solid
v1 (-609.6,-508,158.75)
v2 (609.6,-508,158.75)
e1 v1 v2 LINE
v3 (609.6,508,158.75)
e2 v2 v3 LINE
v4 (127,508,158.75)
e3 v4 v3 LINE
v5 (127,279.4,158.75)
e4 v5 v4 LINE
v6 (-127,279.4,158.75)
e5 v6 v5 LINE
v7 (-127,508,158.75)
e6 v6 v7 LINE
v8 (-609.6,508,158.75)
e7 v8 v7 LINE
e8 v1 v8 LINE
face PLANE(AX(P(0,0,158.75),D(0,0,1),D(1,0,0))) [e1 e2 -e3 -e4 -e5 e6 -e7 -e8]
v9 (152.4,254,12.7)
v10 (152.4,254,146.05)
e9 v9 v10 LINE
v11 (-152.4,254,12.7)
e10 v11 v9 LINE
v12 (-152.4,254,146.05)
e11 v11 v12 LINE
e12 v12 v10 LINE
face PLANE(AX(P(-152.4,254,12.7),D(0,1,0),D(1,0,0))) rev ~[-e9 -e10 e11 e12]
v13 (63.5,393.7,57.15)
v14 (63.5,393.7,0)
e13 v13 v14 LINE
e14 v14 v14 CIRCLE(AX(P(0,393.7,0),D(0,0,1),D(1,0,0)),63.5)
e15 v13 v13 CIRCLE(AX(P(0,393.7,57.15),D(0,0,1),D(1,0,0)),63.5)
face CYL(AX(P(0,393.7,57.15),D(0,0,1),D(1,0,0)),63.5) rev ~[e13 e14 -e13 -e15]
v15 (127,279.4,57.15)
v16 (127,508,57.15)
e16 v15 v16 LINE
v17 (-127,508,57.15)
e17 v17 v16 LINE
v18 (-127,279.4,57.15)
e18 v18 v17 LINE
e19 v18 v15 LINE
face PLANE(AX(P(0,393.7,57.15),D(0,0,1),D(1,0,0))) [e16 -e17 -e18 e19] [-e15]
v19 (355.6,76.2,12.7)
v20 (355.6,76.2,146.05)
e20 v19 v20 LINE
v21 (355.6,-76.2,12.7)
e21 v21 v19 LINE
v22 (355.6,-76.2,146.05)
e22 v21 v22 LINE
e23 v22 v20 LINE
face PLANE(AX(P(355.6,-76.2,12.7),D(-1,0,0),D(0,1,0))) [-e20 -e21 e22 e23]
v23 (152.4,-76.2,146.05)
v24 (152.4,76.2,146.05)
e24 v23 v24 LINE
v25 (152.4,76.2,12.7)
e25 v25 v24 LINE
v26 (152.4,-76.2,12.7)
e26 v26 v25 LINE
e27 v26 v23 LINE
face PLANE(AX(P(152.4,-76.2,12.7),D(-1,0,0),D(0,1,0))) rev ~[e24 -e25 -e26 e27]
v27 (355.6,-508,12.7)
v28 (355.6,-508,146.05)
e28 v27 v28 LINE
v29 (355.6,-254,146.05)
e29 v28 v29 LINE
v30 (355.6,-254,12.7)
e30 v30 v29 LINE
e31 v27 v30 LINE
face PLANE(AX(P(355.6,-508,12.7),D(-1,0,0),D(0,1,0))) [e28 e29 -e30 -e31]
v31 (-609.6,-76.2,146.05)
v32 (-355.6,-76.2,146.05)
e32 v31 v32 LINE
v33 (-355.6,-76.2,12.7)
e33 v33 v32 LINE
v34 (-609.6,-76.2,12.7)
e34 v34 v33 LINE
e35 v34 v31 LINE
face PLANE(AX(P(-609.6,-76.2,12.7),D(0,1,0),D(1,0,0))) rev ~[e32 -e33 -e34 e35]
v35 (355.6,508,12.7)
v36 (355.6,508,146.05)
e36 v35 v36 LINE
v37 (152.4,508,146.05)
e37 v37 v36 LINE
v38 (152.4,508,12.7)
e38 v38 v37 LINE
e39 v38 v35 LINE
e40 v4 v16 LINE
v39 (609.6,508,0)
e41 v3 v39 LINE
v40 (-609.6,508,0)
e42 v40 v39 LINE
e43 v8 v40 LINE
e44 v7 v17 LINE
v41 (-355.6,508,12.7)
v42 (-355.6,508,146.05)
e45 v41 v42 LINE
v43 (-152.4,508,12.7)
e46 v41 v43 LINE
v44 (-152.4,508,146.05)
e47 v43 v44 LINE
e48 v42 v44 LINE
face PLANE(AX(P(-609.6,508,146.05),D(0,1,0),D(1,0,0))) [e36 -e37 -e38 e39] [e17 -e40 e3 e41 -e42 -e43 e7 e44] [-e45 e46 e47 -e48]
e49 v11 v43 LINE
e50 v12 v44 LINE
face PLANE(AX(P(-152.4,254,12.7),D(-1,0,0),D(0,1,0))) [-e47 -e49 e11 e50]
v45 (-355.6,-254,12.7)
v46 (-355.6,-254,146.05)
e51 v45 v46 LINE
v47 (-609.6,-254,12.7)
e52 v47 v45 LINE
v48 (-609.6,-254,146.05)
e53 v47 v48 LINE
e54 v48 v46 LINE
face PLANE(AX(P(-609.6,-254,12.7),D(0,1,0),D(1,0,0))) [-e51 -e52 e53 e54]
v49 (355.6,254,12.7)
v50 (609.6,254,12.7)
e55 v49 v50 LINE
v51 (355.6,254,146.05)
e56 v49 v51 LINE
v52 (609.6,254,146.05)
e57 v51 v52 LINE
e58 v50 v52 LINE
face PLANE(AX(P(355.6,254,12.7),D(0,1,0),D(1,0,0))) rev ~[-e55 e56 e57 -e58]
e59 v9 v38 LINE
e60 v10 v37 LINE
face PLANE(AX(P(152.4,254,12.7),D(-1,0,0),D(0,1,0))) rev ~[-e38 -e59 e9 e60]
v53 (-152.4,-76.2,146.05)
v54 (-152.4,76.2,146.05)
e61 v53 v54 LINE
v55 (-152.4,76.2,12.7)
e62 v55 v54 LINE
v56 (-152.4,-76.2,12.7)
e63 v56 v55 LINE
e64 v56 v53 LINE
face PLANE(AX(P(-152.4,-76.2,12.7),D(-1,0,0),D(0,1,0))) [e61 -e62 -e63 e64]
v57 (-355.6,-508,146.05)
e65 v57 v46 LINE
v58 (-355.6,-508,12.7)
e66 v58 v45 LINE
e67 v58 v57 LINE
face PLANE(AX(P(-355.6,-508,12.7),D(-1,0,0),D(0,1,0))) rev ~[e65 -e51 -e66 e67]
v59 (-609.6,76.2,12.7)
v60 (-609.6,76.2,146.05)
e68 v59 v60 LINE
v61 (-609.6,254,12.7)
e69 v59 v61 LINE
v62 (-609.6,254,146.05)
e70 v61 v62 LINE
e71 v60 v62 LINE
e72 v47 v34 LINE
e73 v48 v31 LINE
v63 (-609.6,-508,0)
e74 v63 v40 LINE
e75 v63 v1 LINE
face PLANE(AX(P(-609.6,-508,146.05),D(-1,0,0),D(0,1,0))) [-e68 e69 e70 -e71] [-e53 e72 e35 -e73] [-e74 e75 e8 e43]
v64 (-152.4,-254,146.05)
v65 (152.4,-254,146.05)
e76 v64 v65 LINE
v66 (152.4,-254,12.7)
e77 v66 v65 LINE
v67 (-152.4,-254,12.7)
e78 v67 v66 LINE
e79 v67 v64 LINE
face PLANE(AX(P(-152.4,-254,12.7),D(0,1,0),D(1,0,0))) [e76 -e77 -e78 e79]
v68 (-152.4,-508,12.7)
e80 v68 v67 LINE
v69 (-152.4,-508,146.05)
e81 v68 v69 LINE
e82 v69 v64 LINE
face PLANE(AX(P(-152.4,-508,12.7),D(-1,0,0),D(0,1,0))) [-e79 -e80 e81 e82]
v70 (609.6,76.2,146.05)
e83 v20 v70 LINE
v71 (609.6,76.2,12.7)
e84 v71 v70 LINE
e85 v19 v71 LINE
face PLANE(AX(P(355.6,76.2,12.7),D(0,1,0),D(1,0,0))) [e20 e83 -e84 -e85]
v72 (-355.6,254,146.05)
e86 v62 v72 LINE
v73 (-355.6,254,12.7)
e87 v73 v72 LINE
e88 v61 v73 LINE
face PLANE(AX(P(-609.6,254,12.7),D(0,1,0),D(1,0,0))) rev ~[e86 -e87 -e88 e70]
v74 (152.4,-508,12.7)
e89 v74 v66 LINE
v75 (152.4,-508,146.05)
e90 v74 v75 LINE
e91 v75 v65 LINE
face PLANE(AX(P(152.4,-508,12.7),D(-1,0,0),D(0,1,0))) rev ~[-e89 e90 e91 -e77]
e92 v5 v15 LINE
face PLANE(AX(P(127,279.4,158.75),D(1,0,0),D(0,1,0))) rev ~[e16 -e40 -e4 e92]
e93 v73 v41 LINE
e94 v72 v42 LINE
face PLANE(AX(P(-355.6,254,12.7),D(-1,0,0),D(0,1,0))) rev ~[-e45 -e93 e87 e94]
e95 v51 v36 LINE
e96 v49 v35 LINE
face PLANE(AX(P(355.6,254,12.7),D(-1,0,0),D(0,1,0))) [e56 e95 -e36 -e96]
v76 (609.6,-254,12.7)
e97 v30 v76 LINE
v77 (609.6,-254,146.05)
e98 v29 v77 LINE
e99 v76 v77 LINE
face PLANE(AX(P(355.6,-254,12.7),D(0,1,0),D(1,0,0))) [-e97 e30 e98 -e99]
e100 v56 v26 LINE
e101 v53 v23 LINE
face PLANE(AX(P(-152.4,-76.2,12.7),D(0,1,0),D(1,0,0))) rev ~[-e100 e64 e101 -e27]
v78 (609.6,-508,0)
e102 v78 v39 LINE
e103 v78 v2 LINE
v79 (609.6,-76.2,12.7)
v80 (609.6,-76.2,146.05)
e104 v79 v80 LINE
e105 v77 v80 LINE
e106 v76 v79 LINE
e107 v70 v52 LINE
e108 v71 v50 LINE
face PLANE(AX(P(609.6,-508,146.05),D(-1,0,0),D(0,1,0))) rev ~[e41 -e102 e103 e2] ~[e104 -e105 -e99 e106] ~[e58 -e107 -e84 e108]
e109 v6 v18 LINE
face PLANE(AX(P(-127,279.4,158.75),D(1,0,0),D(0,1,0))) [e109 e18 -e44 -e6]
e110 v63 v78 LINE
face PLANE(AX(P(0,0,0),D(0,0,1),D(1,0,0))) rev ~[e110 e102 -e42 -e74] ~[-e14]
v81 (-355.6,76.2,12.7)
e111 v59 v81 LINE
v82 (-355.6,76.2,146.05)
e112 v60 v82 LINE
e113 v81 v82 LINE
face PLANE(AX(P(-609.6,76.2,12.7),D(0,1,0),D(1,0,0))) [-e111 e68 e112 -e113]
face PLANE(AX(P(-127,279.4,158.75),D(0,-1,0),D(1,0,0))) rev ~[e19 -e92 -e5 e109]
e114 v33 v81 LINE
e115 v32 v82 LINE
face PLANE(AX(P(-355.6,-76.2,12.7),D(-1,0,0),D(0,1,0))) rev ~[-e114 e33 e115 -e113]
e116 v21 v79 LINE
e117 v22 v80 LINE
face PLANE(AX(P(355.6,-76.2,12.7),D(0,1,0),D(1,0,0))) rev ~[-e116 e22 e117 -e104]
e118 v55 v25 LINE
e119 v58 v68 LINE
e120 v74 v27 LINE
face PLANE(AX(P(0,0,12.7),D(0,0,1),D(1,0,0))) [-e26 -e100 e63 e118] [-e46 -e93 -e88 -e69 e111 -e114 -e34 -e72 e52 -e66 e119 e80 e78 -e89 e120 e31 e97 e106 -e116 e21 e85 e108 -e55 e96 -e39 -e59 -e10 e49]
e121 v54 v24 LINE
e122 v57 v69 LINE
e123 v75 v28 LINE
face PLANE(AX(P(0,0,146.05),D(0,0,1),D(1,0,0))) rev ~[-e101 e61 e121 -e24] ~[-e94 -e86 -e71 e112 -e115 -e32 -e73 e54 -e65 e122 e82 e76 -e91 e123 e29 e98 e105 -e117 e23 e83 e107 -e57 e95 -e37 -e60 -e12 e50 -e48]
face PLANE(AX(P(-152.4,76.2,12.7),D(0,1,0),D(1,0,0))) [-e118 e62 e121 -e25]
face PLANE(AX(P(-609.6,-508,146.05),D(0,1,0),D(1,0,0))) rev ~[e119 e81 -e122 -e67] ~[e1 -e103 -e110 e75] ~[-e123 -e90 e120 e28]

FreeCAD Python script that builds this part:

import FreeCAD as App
import Part
import Sketcher

V = App.Vector
Q = App.Units.Quantity


def add_polygon(sketch, points):
    """Adds a closed chain of lines whose ends are joined by coincident constraints."""
    first, n = sketch.GeometryCount, len(points)
    for a, b in zip(points, points[1:] + points[:1]):
        sketch.addGeometry(Part.LineSegment(App.Vector(*a, 0), App.Vector(*b, 0)), False)
    for i in range(n):
        sketch.addConstraint(Sketcher.Constraint("Coincident", first + i, 2, first + (i + 1) % n, 1))

doc = App.newDocument("Part")
body = doc.addObject("PartDesign::Body", "Body")

# Sketch on XY plane
sketch1 = body.newObject("Sketcher::SketchObject", "Sketch")
sketch1.AttachmentSupport = (doc.getObject("XY_Plane"), [""])
sketch1.MapMode = "FlatFace"
add_polygon(sketch1, [(-610, 508), (-610, -508), (610, -508), (610, 508)])  # lines 0-3
sketch1.addConstraint([
    Sketcher.Constraint("Vertical", 0),
    Sketcher.Constraint("Horizontal", 1),
    Sketcher.Constraint("Vertical", 2),
    Sketcher.Constraint("Horizontal", 3),
    Sketcher.Constraint("Symmetric", 0, 2, 2, 2, -1, 1),
    Sketcher.Constraint("DistanceX", 1, 1, 1, 2, Q("48 in")),
    Sketcher.Constraint("DistanceY", 0, 2, 0, 1, Q("40 in")),
])
pad1 = body.newObject("PartDesign::Pad", "Pad")
pad1.Profile = sketch1
pad1.Length = Q("0.5 in")

# Sketch on XY plane
sketch2 = body.newObject("Sketcher::SketchObject", "Sketch001")
sketch2.AttachmentSupport = (doc.getObject("XY_Plane"), [""])
sketch2.MapMode = "FlatFace"
sketch2.AttachmentOffset = App.Placement(V(0, 0, 0.5 * 25.4), App.Rotation())
add_polygon(sketch2, [(-610, 508), (-610, 254), (-356, 254), (-356, 508)])  # lines 0-3
add_polygon(sketch2, [(356, 508), (356, 254), (610, 254), (610, 508)])  # lines 4-7
add_polygon(sketch2, [(356, -254), (356, -508), (610, -508), (610, -254)])  # lines 8-11
add_polygon(sketch2, [(-610, -254), (-610, -508), (-356, -508), (-356, -254)])  # lines 12-15
add_polygon(sketch2, [(-152, 508), (-152, 254), (152, 254), (152, 508)])  # lines 16-19
add_polygon(sketch2, [(-152, -254), (-152, -508), (152, -508), (152, -254)])  # lines 20-23
add_polygon(sketch2, [(356, 76), (356, -76), (610, -76), (610, 76)])  # lines 24-27
add_polygon(sketch2, [(-610, 76), (-610, -76), (-356, -76), (-356, 76)])  # lines 28-31
add_polygon(sketch2, [(-152, 76), (-152, -76), (152, -76), (152, 76)])  # lines 32-35
sketch2.addConstraint([
    Sketcher.Constraint("Vertical", 0),
    Sketcher.Constraint("Horizontal", 1),
    Sketcher.Constraint("Vertical", 2),
    Sketcher.Constraint("Horizontal", 3),
    Sketcher.Constraint("Vertical", 4),
    Sketcher.Constraint("Horizontal", 5),
    Sketcher.Constraint("Vertical", 6),
    Sketcher.Constraint("Horizontal", 7),
    Sketcher.Constraint("Vertical", 8),
    Sketcher.Constraint("Horizontal", 9),
    Sketcher.Constraint("Vertical", 10),
    Sketcher.Constraint("Horizontal", 11),
    Sketcher.Constraint("Vertical", 12),
    Sketcher.Constraint("Horizontal", 13),
    Sketcher.Constraint("Vertical", 14),
    Sketcher.Constraint("Horizontal", 15),
    Sketcher.Constraint("Vertical", 16),
    Sketcher.Constraint("Horizontal", 17),
    Sketcher.Constraint("Vertical", 18),
    Sketcher.Constraint("Horizontal", 19),
    Sketcher.Constraint("Vertical", 20),
    Sketcher.Constraint("Horizontal", 21),
    Sketcher.Constraint("Vertical", 22),
    Sketcher.Constraint("Horizontal", 23),
    Sketcher.Constraint("Vertical", 24),
    Sketcher.Constraint("Horizontal", 25),
    Sketcher.Constraint("Vertical", 26),
    Sketcher.Constraint("Horizontal", 27),
    Sketcher.Constraint("Vertical", 28),
    Sketcher.Constraint("Horizontal", 29),
    Sketcher.Constraint("Vertical", 30),
    Sketcher.Constraint("Horizontal", 31),
    Sketcher.Constraint("Vertical", 32),
    Sketcher.Constraint("Horizontal", 33),
    Sketcher.Constraint("Vertical", 34),
    Sketcher.Constraint("Horizontal", 35),
    Sketcher.Constraint("Symmetric", 2, 2, 8, 2, -1, 1),
    Sketcher.Constraint("Symmetric", 0, 2, 10, 2, -1, 1),
    Sketcher.Constraint("Symmetric", 6, 2, 12, 2, -1, 1),
    Sketcher.Constraint("Symmetric", 4, 2, 14, 2, -1, 1),
    Sketcher.Constraint("Symmetric", 18, 2, 20, 2, -1, 1),
    Sketcher.Constraint("Symmetric", 16, 2, 22, 2, -1, 1),
    Sketcher.Constraint("Symmetric", 26, 2, 28, 2, -1, 1),
    Sketcher.Constraint("Symmetric", 24, 2, 30, 2, -1, 1),
    Sketcher.Constraint("Symmetric", 32, 2, 34, 2, -1, 1),
    Sketcher.Constraint("Symmetric", 1, 2, 4, 2, -2),
    Sketcher.Constraint("Symmetric", 3, 2, 6, 2, -2),
    Sketcher.Constraint("Horizontal", 5, 2, 16, 2),
    Sketcher.Constraint("Horizontal", 7, 2, 18, 2),
    Sketcher.Constraint("Horizontal", 25, 2, 28, 2),
    Sketcher.Constraint("Horizontal", 29, 2, 32, 2),
    Sketcher.Constraint("Vertical", 19, 2, 20, 2),
    Sketcher.Constraint("Vertical", 11, 2, 24, 2),
    Sketcher.Constraint("Vertical", 10, 2, 25, 2),
    Sketcher.Constraint("Vertical", 23, 2, 32, 2),
    Sketcher.Constraint("Equal", 31, 0),
    Sketcher.Constraint("DistanceX", 1, 1, 1, 2, Q("10 in")),
    Sketcher.Constraint("DistanceX", 17, 1, 17, 2, Q("12 in")),
    Sketcher.Constraint("DistanceY", 24, 2, 24, 1, Q("6 in")),
    Sketcher.Constraint("DistanceX", 0, 2, -1, 1, Q("24 in")),
    Sketcher.Constraint("DistanceY", -1, 1, 0, 2, Q("10 in")),
])
pad2 = body.newObject("PartDesign::Pad", "Pad001")
pad2.Profile = sketch2
pad2.Length = Q("5.25 in")

# Sketch on XY plane
sketch3 = body.newObject("Sketcher::SketchObject", "Sketch002")
sketch3.AttachmentSupport = (doc.getObject("XY_Plane"), [""])
sketch3.MapMode = "FlatFace"
sketch3.AttachmentOffset = App.Placement(V(0, 0, 5.75 * 25.4), App.Rotation())
add_polygon(sketch3, [(-610, 508), (-610, -508), (610, -508), (610, 508)])  # lines 0-3
sketch3.addConstraint([
    Sketcher.Constraint("Vertical", 0),
    Sketcher.Constraint("Horizontal", 1),
    Sketcher.Constraint("Vertical", 2),
    Sketcher.Constraint("Horizontal", 3),
    Sketcher.Constraint("Symmetric", 0, 2, 2, 2, -1, 1),
    Sketcher.Constraint("DistanceX", 1, 1, 1, 2, Q("48 in")),
    Sketcher.Constraint("DistanceY", 0, 2, 0, 1, Q("40 in")),
])
pad3 = body.newObject("PartDesign::Pad", "Pad002")
pad3.Profile = sketch3
pad3.Length = Q("0.5 in")

# Sketch on XY plane
sketch4 = body.newObject("Sketcher::SketchObject", "Sketch003")
sketch4.AttachmentSupport = (doc.getObject("XY_Plane"), [""])
sketch4.MapMode = "FlatFace"
sketch4.AttachmentOffset = App.Placement(V(0, 0, 6.25 * 25.4), App.Rotation())
add_polygon(sketch4, [(-127, 508), (-127, 279), (127, 279), (127, 508)])  # lines 0-3
sketch4.addConstraint([
    Sketcher.Constraint("Vertical", 0),
    Sketcher.Constraint("Horizontal", 1),
    Sketcher.Constraint("Vertical", 2),
    Sketcher.Constraint("Horizontal", 3),
    Sketcher.Constraint("DistanceX", 1, 1, 1, 2, Q("10 in")),
    Sketcher.Constraint("DistanceY", 0, 2, 0, 1, Q("9 in")),
    Sketcher.Constraint("DistanceX", 0, 2, -1, 1, Q("5 in")),
    Sketcher.Constraint("DistanceY", -1, 1, 0, 2, Q("11 in")),
])
pocket1 = body.newObject("PartDesign::Pocket", "Pocket")
pocket1.Profile = sketch4
pocket1.Length = Q("4 in")

# Sketch on XY plane
sketch5 = body.newObject("Sketcher::SketchObject", "Sketch004")
sketch5.AttachmentSupport = (doc.getObject("XY_Plane"), [""])
sketch5.MapMode = "FlatFace"
sketch5.AttachmentOffset = App.Placement(V(0, 0, 2.25 * 25.4), App.Rotation())
sketch5.addGeometry(Part.Circle(V(0, 394, 0), V(0, 0, 1), 64), False)
sketch5.addConstraint([
    Sketcher.Constraint("PointOnObject", 0, 3, -2),
    Sketcher.Constraint("Diameter", 0, Q("5 in")),
    Sketcher.Constraint("DistanceY", -1, 1, 0, 3, Q("15.5 in")),
])
pocket2 = body.newObject("PartDesign::Pocket", "Pocket001")
pocket2.Profile = sketch5
pocket2.Type = "ThroughAll"

doc.recompute()
